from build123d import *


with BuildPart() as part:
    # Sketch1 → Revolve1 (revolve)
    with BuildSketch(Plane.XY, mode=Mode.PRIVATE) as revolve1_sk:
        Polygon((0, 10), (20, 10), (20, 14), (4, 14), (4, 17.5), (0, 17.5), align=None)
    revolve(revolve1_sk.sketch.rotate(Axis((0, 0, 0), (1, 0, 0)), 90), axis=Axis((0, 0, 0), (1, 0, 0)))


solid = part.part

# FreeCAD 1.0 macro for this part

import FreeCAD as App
import Part
import Sketcher

V = App.Vector
Q = App.Units.Quantity


def add_polygon(sketch, points):
    """Adds a closed chain of lines whose ends are joined by coincident constraints."""
    first, n = sketch.GeometryCount, len(points)
    for a, b in zip(points, points[1:] + points[:1]):
        sketch.addGeometry(Part.LineSegment(App.Vector(*a, 0), App.Vector(*b, 0)), False)
    for i in range(n):
        sketch.addConstraint(Sketcher.Constraint("Coincident", first + i, 2, first + (i + 1) % n, 1))

doc = App.newDocument("Part")
body = doc.addObject("PartDesign::Body", "Body")

# Sketch on XY plane
sketch1 = doc.addObject("Sketcher::SketchObject", "Sketch")
body.addObject(sketch1)
sketch1.AttachmentSupport = (doc.XY_Plane, [""])
sketch1.MapMode = "FlatFace"
add_polygon(sketch1, [(0, 10), (20, 10), (20, 14), (4, 14), (4, 17.5), (0, 17.5)])  # lines 0-5
sketch1.addConstraint([
    Sketcher.Constraint("Horizontal", 0),
    Sketcher.Constraint("Vertical", 1),
    Sketcher.Constraint("Horizontal", 2),
    Sketcher.Constraint("Vertical", 3),
    Sketcher.Constraint("Horizontal", 4),
    Sketcher.Constraint("Vertical", 5),
    Sketcher.Constraint("PointOnObject", 4, 2, -2),
    Sketcher.Constraint("Equal", 4, 1),
    Sketcher.Constraint("DistanceX", 0, 1, 0, 2, Q("20 mm")),
    Sketcher.Constraint("DistanceX", 2, 2, 2, 1, Q("16 mm")),
    Sketcher.Constraint("DistanceY", 3, 1, 3, 2, Q("3.5 mm")),
    Sketcher.Constraint("DistanceY", -1, 1, 0, 2, Q("10 mm")),
])
revolution = doc.addObject("PartDesign::Revolution", "Revolution")
body.addObject(revolution)
revolution.Profile = sketch1
revolution.ReferenceAxis = (sketch1, ["H_Axis"])
revolution.Angle = 360

doc.recompute()
